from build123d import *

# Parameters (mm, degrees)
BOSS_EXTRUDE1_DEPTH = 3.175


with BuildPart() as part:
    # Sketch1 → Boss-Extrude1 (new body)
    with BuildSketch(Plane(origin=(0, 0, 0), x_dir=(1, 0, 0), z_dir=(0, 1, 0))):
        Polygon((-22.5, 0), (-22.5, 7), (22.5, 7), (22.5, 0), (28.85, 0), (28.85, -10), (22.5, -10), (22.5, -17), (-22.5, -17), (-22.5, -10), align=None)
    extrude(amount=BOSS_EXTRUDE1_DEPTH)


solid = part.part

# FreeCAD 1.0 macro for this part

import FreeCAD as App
import Part
import Sketcher
from FreeCAD import Vector

doc = App.newDocument("Part")
params = doc.addObject("Spreadsheet::Sheet", "Params")
for row, (alias, value) in enumerate([
    ("sketch1_width", "45 mm"),
    ("sketch1_height", "24 mm"),
    ("sketch1_height2", "7 mm"),
    ("sketch1_width2", "6.35 mm"),
    ("pad1_length", "3.175 mm"),
], start=1):
    params.set(f"A{row}", alias)
    params.set(f"B{row}", "=" + value)
    params.setAlias(f"B{row}", alias)

body = doc.addObject("PartDesign::Body", "Body")

sketch1 = body.newObject("Sketcher::SketchObject", "Sketch")
sketch1.AttachmentSupport = (doc.getObject("XZ_Plane"), [""])
sketch1.MapMode = "FlatFace"
sketch1.addGeometry([
    Part.LineSegment(Vector(-22, -7, 0), Vector(-22, 17, 0)),
    Part.LineSegment(Vector(-22, 17, 0), Vector(22, 17, 0)),
    Part.LineSegment(Vector(22, 17, 0), Vector(22, 10, 0)),
    Part.LineSegment(Vector(22, 10, 0), Vector(29, 10, 0)),
    Part.LineSegment(Vector(29, 10, 0), Vector(29, 0, 0)),
    Part.LineSegment(Vector(29, 0, 0), Vector(22, 0, 0)),
    Part.LineSegment(Vector(22, 0, 0), Vector(22, -7, 0)),
    Part.LineSegment(Vector(22, -7, 0), Vector(-22, -7, 0)),
], False)
sketch1.addConstraint([
    Sketcher.Constraint("Coincident", 0, 2, 1, 1),
    Sketcher.Constraint("Coincident", 1, 2, 2, 1),
    Sketcher.Constraint("Coincident", 2, 2, 3, 1),
    Sketcher.Constraint("Coincident", 3, 2, 4, 1),
    Sketcher.Constraint("Coincident", 4, 2, 5, 1),
    Sketcher.Constraint("Coincident", 5, 2, 6, 1),
    Sketcher.Constraint("Coincident", 6, 2, 7, 1),
    Sketcher.Constraint("Coincident", 7, 2, 0, 1),
    Sketcher.Constraint("Vertical", 0),
    Sketcher.Constraint("Horizontal", 1),
    Sketcher.Constraint("Vertical", 2),
    Sketcher.Constraint("Horizontal", 3),
    Sketcher.Constraint("Vertical", 4),
    Sketcher.Constraint("Horizontal", 5),
    Sketcher.Constraint("Vertical", 6),
    Sketcher.Constraint("Horizontal", 7),
    Sketcher.Constraint("PointOnObject", 4, 2, -1),
    Sketcher.Constraint("Vertical", 2, 2, 5, 2),
    Sketcher.Constraint("Equal", 2, 6),
    Sketcher.Constraint("DistanceX", 1, 1, 1, 2, 45.0),
    Sketcher.Constraint("DistanceY", 0, 1, 0, 2, 24.0),
    Sketcher.Constraint("DistanceY", 2, 2, 2, 1, 7.0),
    Sketcher.Constraint("DistanceX", 3, 1, 3, 2, 6.35),
    Sketcher.Constraint("DistanceX", 0, 2, -1, 1, 22.5),
])
sketch1.setExpression("Constraints[19]", "Params.sketch1_width")
sketch1.setExpression("Constraints[20]", "Params.sketch1_height")
sketch1.setExpression("Constraints[21]", "Params.sketch1_height2")
sketch1.setExpression("Constraints[22]", "Params.sketch1_width2")
pad1 = body.newObject("PartDesign::Pad", "Pad")
pad1.Profile = sketch1
pad1.setExpression("Length", "Params.pad1_length")
pad1.Reversed = True

doc.recompute()
